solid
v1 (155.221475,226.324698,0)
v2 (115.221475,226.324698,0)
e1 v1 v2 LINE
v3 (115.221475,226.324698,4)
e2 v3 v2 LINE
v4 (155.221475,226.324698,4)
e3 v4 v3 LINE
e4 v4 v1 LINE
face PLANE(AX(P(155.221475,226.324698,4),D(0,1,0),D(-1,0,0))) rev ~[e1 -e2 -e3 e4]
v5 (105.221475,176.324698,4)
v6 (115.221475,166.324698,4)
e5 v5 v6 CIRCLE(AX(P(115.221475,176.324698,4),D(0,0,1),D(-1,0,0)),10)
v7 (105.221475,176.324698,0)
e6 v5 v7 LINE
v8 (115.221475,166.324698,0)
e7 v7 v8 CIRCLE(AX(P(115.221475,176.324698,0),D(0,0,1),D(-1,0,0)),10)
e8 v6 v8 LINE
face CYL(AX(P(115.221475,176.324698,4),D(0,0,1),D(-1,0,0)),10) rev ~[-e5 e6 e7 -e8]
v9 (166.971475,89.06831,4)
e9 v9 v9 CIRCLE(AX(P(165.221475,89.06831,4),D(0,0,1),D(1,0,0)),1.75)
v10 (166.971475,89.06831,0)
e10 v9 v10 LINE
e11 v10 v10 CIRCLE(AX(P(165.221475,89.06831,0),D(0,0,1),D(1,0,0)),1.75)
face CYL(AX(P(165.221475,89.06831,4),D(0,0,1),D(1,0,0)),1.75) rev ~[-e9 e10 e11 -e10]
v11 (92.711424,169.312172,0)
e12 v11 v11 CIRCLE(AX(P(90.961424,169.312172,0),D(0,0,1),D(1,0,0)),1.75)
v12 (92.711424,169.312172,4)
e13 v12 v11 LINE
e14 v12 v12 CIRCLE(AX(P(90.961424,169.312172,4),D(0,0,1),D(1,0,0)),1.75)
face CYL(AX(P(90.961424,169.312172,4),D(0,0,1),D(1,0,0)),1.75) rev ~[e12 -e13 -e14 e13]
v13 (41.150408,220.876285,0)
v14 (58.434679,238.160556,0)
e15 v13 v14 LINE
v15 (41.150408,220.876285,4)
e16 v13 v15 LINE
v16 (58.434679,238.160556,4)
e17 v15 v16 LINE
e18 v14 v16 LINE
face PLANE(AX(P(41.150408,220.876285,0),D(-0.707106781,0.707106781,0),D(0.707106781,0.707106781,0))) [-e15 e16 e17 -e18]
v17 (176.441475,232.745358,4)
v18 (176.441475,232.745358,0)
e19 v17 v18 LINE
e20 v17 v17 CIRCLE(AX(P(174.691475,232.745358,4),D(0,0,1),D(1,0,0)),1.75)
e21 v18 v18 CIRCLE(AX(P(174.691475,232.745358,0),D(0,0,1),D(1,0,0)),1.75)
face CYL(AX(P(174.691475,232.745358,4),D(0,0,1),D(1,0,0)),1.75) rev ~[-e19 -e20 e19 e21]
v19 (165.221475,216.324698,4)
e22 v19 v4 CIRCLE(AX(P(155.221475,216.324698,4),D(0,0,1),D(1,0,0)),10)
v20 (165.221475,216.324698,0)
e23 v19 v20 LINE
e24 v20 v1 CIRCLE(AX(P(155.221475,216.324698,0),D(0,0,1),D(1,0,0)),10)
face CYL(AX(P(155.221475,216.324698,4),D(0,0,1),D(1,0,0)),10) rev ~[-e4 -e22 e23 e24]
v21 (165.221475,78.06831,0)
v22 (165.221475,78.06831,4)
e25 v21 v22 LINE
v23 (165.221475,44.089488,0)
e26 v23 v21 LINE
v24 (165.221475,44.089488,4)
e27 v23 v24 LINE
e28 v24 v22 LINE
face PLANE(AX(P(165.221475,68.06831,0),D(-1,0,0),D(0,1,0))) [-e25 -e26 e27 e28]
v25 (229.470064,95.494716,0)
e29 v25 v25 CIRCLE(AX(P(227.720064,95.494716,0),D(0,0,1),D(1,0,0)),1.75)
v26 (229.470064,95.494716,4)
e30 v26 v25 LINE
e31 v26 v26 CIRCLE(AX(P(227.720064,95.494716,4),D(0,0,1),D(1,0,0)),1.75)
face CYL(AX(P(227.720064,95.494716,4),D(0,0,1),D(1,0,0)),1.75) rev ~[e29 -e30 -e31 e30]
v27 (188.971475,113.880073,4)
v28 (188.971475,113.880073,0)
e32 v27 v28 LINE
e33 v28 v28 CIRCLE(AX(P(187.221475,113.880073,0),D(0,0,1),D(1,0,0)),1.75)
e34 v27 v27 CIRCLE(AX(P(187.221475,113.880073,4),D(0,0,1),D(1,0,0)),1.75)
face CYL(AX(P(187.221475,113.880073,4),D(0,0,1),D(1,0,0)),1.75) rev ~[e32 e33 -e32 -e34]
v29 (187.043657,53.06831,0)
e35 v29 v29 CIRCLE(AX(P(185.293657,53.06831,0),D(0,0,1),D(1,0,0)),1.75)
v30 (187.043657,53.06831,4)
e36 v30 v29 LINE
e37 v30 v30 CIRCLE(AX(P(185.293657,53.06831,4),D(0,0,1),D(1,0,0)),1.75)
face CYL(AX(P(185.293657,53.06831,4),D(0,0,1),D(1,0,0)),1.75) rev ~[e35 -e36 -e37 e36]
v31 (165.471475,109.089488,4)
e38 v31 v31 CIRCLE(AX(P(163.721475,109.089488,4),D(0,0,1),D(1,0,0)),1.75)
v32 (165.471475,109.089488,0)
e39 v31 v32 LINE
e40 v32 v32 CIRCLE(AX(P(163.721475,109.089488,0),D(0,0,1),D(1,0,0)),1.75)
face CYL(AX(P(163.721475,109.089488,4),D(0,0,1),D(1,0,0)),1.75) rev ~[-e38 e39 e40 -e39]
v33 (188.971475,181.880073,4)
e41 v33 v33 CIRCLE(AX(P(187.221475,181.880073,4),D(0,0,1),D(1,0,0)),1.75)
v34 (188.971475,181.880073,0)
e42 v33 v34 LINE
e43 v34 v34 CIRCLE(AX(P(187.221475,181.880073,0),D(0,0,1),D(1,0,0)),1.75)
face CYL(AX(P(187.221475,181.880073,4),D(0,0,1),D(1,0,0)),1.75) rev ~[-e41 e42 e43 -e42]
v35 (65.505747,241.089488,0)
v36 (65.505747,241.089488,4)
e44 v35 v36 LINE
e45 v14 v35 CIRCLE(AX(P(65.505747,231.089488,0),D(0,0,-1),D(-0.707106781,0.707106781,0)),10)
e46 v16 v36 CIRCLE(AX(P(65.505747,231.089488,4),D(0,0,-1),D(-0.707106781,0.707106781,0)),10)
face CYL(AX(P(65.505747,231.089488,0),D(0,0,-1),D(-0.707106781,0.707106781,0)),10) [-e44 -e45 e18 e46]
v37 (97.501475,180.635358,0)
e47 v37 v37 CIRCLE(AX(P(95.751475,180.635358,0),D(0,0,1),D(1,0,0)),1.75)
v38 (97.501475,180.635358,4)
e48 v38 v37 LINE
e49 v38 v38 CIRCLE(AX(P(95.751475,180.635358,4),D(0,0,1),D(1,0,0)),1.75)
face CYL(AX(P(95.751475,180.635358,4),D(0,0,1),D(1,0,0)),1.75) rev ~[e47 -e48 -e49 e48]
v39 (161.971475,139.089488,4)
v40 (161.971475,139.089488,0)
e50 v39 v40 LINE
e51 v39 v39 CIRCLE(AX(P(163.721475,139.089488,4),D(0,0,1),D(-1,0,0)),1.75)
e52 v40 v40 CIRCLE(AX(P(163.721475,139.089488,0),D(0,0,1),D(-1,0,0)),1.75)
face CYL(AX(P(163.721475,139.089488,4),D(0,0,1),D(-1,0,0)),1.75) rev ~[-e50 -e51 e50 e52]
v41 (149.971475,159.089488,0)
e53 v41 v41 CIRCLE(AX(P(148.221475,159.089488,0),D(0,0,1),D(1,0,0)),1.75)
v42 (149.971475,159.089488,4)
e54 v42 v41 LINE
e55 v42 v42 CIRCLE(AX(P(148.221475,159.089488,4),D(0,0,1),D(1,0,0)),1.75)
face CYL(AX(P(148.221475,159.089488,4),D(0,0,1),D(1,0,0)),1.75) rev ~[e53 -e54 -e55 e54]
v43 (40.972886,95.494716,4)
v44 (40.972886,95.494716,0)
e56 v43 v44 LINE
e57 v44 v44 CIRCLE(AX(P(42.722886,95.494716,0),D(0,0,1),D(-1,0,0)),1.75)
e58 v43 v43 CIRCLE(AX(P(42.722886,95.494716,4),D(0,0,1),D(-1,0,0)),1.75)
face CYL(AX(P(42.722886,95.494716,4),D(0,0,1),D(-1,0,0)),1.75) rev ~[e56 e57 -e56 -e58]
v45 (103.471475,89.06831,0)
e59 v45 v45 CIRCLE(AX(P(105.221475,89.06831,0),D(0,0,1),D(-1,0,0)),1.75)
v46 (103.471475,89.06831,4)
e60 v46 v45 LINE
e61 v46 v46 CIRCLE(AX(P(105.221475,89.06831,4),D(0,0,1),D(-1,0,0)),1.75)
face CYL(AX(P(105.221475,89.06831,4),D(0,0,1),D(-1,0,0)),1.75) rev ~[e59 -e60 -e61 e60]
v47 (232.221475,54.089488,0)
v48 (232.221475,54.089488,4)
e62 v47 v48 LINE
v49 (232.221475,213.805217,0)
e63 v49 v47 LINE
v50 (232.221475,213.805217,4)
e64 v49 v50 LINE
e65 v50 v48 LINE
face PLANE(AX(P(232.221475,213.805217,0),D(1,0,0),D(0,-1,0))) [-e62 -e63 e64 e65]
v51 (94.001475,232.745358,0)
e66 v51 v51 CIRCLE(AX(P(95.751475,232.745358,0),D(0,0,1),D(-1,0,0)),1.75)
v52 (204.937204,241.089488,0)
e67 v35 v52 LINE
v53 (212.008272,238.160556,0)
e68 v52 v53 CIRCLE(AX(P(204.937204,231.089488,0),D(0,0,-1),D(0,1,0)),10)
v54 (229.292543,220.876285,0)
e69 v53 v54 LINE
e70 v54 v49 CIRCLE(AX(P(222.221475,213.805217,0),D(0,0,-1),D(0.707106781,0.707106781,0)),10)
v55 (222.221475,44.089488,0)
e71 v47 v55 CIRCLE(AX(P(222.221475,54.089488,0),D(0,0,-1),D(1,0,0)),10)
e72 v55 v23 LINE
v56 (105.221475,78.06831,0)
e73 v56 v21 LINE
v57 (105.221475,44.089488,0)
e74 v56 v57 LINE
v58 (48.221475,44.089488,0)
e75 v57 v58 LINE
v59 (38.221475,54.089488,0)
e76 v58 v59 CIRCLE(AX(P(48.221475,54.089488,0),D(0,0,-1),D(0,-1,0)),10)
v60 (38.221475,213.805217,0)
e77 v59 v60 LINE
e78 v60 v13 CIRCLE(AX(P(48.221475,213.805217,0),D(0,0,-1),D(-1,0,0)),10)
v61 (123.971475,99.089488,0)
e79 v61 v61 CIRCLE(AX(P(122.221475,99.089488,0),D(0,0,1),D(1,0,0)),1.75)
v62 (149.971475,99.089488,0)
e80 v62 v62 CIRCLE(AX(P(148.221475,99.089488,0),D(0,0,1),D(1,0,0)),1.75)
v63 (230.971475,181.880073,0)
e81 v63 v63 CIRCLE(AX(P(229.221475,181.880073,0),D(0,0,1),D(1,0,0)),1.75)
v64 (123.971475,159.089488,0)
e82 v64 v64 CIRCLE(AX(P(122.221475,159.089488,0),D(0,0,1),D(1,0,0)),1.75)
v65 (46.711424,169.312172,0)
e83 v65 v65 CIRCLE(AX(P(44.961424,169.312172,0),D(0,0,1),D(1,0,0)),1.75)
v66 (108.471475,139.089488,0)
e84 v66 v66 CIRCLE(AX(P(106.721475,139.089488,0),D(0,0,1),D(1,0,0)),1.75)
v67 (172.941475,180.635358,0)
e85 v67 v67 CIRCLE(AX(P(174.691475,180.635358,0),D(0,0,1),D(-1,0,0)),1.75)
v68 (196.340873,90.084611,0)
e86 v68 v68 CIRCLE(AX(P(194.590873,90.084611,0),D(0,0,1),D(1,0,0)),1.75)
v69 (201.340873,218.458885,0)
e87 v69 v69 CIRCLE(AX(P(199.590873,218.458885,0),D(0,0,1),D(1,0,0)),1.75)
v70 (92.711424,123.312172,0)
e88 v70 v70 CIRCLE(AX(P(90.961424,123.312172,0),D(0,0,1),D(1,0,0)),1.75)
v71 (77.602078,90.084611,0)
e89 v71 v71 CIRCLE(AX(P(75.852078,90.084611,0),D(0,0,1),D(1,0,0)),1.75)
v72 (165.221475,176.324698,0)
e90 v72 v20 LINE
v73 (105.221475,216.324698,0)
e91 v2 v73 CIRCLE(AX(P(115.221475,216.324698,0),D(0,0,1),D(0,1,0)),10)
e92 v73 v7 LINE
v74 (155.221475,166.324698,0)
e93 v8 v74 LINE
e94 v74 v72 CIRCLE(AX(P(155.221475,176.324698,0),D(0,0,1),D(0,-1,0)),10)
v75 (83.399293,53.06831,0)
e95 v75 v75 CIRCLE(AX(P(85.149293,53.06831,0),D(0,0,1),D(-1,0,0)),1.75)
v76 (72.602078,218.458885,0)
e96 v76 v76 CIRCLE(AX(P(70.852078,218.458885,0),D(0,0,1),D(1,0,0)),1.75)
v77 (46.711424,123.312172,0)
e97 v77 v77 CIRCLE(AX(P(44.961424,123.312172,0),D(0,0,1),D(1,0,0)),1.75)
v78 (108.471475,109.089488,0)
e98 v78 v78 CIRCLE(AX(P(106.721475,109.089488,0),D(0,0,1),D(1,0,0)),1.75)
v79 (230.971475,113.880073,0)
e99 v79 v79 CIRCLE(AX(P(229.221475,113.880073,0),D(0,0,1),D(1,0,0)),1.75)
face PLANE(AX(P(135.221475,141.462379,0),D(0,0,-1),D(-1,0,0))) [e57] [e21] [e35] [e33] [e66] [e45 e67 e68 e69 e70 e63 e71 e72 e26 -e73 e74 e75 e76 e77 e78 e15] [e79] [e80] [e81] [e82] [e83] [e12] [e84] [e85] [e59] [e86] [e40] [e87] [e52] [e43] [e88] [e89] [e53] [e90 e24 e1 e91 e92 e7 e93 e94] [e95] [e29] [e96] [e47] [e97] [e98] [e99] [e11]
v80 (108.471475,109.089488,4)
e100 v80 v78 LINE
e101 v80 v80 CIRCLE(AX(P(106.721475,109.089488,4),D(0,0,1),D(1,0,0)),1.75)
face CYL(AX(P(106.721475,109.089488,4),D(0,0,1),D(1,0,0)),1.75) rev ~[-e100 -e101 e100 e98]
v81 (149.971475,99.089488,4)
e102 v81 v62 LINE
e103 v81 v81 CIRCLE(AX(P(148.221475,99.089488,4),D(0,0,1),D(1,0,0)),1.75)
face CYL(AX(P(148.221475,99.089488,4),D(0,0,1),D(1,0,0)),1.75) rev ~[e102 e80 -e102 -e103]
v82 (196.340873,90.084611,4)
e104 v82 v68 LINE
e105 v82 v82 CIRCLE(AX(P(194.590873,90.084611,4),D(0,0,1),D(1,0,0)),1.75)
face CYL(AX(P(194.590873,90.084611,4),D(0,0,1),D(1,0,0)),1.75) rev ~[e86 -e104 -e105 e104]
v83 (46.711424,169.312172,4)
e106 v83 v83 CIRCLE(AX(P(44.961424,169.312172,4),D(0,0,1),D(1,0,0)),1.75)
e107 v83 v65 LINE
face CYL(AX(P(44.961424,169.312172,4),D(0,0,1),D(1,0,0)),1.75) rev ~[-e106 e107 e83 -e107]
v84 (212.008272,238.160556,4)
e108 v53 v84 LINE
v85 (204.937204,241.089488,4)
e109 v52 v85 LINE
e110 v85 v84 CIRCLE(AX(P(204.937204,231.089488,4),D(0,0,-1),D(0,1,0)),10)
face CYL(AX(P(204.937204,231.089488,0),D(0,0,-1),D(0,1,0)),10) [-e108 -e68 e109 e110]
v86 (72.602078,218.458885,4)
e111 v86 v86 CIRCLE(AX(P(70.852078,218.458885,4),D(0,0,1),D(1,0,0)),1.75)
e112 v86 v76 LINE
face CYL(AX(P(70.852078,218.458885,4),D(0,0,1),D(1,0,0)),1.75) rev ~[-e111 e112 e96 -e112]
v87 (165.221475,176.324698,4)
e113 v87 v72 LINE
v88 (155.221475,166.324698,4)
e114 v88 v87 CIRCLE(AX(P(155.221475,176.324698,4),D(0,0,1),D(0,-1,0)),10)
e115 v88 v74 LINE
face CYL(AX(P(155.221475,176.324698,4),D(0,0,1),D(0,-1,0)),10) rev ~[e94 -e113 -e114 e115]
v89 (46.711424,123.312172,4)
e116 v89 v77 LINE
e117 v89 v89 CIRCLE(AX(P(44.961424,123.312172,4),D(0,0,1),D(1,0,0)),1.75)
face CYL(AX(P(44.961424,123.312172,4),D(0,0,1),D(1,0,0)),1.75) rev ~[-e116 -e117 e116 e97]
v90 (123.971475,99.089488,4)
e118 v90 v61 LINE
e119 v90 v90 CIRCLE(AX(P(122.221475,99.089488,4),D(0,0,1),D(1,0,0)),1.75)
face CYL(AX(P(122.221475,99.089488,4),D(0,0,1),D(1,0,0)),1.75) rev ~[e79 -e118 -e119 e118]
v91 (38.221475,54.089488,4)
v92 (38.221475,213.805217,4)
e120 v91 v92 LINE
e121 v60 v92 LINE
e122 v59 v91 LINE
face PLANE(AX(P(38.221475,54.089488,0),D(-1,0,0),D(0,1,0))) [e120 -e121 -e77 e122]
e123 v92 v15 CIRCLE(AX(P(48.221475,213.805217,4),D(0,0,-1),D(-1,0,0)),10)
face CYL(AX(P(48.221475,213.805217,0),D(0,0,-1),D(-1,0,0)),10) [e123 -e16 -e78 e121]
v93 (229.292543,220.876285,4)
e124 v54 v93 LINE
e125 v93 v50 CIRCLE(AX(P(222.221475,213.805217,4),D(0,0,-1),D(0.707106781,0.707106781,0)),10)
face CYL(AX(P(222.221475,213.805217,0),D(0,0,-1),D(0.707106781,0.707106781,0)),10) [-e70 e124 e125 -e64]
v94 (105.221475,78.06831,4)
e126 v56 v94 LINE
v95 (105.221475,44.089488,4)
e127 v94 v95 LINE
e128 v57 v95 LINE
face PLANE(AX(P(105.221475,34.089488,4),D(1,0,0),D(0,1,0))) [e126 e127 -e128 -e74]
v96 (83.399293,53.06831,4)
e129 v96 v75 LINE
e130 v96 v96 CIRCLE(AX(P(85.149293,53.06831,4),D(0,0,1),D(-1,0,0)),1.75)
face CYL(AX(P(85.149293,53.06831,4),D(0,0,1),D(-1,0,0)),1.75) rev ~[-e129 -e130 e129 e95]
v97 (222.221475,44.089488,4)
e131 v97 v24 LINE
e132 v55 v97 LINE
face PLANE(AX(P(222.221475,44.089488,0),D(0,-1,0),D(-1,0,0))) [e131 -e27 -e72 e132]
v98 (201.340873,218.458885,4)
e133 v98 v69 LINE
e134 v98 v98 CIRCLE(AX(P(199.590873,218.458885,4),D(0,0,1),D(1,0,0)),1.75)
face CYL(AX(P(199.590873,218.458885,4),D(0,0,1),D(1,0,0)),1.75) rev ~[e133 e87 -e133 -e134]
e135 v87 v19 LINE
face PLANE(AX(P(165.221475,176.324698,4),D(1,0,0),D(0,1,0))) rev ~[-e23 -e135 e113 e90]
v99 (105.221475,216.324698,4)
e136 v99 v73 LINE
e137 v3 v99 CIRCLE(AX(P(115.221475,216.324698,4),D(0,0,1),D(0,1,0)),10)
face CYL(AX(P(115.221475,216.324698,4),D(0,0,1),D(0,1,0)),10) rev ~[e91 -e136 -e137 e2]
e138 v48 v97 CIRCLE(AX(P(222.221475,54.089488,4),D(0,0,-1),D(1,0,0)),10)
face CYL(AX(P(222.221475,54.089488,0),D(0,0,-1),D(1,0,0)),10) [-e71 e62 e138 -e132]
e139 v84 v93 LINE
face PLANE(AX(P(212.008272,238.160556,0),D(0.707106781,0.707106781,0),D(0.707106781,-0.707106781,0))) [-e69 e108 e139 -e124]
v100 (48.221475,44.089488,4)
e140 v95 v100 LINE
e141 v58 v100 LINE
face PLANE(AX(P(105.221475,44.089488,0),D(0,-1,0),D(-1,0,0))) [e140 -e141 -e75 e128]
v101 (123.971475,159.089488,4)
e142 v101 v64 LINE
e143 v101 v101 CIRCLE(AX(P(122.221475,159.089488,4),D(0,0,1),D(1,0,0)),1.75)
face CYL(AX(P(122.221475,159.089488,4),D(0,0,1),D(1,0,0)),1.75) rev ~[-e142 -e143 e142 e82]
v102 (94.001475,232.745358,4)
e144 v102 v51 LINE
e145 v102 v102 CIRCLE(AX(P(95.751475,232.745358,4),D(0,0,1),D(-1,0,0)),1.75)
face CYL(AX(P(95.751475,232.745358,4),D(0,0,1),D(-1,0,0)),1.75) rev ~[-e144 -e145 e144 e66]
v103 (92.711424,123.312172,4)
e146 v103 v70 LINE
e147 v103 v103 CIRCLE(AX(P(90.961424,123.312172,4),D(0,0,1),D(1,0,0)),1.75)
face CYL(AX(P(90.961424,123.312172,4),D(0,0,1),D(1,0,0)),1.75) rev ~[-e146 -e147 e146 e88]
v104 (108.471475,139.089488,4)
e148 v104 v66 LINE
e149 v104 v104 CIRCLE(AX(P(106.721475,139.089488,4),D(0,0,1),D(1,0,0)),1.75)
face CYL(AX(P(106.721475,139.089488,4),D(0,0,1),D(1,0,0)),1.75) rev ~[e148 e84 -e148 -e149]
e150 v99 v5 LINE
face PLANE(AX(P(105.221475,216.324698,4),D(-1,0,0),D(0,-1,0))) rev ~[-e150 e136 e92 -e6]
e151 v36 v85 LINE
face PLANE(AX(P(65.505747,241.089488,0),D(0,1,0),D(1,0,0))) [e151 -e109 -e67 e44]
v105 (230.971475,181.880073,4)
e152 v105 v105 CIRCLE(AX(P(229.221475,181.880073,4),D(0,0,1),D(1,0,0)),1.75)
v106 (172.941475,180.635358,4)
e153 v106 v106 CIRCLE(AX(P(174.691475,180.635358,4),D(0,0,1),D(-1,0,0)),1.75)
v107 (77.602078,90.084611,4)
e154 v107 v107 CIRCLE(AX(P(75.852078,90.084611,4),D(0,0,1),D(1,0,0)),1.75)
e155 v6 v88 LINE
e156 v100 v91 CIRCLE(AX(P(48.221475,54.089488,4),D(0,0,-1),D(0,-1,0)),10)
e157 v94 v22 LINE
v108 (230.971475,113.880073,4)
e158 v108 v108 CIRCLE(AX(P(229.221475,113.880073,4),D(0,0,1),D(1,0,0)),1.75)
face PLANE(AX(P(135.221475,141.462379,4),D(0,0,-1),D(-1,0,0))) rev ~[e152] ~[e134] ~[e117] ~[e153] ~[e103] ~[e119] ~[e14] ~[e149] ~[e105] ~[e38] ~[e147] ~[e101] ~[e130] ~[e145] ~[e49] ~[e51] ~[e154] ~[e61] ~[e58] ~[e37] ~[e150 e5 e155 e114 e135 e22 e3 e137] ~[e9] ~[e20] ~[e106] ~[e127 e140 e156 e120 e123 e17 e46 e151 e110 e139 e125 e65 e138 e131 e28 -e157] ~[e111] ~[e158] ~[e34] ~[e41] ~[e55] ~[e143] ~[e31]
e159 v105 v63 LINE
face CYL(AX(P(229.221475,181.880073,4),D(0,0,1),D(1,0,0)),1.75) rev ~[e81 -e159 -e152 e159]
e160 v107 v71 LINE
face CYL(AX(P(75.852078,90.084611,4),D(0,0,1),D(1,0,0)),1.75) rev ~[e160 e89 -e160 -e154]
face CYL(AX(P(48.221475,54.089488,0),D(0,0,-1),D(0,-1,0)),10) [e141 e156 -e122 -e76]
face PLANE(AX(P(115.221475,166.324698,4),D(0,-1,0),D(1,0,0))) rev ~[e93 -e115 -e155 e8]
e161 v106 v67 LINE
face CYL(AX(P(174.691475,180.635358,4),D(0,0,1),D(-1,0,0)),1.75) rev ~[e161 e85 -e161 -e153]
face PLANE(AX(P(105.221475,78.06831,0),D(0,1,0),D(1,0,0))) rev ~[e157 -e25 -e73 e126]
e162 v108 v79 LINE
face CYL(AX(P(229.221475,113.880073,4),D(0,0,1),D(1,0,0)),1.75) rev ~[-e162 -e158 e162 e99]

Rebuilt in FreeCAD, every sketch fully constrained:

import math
import FreeCAD as App
import Part
import Sketcher

V = App.Vector

doc = App.newDocument("Part")
body = doc.addObject("PartDesign::Body", "Body")

sketch1 = body.newObject("Sketcher::SketchObject", "Sketch")
sketch1.AttachmentSupport = (doc.getObject("XY_Plane"), [""])
sketch1.MapMode = "FlatFace"
sketch1.addGeometry(Part.LineSegment(V(197, 259, 0), V(74, 259, 0)), False)
sketch1.addGeometry(Part.ArcOfCircle(Part.Circle(V(74, 239, 0), V(0, 0, 1), 20), math.radians(90), math.radians(135)), False)
sketch1.addGeometry(Part.LineSegment(V(59, 253, 0), V(31, 225, 0)), False)
sketch1.addGeometry(Part.ArcOfCircle(Part.Circle(V(45, 211, 0), V(0, 0, 1), 20), math.radians(135), math.radians(180)), False)
sketch1.addGeometry(Part.LineSegment(V(25, 211, 0), V(25, 54, 0)), False)
sketch1.addGeometry(Part.ArcOfCircle(Part.Circle(V(45, 54, 0), V(0, 0, 1), 20), math.radians(-180), math.radians(-90)), False)
sketch1.addGeometry(Part.LineSegment(V(45, 34, 0), V(225, 34, 0)), False)
sketch1.addGeometry(Part.ArcOfCircle(Part.Circle(V(225, 54, 0), V(0, 0, 1), 20), math.radians(-90), math.radians(0)), False)
sketch1.addGeometry(Part.LineSegment(V(245, 54, 0), V(245, 211, 0)), False)
sketch1.addGeometry(Part.ArcOfCircle(Part.Circle(V(225, 211, 0), V(0, 0, 1), 20), math.radians(0), math.radians(45)), False)
sketch1.addGeometry(Part.LineSegment(V(239, 225, 0), V(211, 253, 0)), False)
sketch1.addGeometry(Part.ArcOfCircle(Part.Circle(V(197, 239, 0), V(0, 0, 1), 20), math.radians(45), math.radians(90)), False)
sketch1.addConstraint(Sketcher.Constraint("Tangent", 0, 2, 1, 1))
sketch1.addConstraint(Sketcher.Constraint("Tangent", 1, 2, 2, 1))
sketch1.addConstraint(Sketcher.Constraint("Tangent", 2, 2, 3, 1))
sketch1.addConstraint(Sketcher.Constraint("Tangent", 3, 2, 4, 1))
sketch1.addConstraint(Sketcher.Constraint("Tangent", 4, 2, 5, 1))
sketch1.addConstraint(Sketcher.Constraint("Tangent", 5, 2, 6, 1))
sketch1.addConstraint(Sketcher.Constraint("Tangent", 6, 2, 7, 1))
sketch1.addConstraint(Sketcher.Constraint("Tangent", 7, 2, 8, 1))
sketch1.addConstraint(Sketcher.Constraint("Tangent", 8, 2, 9, 1))
sketch1.addConstraint(Sketcher.Constraint("Tangent", 9, 2, 10, 1))
sketch1.addConstraint(Sketcher.Constraint("Tangent", 10, 2, 11, 1))
sketch1.addConstraint(Sketcher.Constraint("Tangent", 11, 2, 0, 1))
sketch1.addConstraint(Sketcher.Constraint("Horizontal", 0))
sketch1.addConstraint(Sketcher.Constraint("Vertical", 4))
sketch1.addConstraint(Sketcher.Constraint("Horizontal", 6))
sketch1.addConstraint(Sketcher.Constraint("Vertical", 8))
sketch1.addConstraint(Sketcher.Constraint("Equal", 1, 3))
sketch1.addConstraint(Sketcher.Constraint("Equal", 3, 5))
sketch1.addConstraint(Sketcher.Constraint("Equal", 5, 7))
sketch1.addConstraint(Sketcher.Constraint("Equal", 7, 9))
sketch1.addConstraint(Sketcher.Constraint("Equal", 9, 11))
sketch1.addConstraint(Sketcher.Constraint("Perpendicular", 2, 10))
sketch1.addConstraint(Sketcher.Constraint("Horizontal", 3, 3, 9, 3))
sketch1.addConstraint(Sketcher.Constraint("Horizontal", 2, 2, 9, 2))
sketch1.addConstraint(Sketcher.Constraint("Radius", 1, 20.0))
sketch1.addConstraint(Sketcher.Constraint("DistanceX", 6, 1, 6, 2, 180.0))
sketch1.addConstraint(Sketcher.Constraint("Distance", 2, 40.0))
sketch1.addConstraint(Sketcher.Constraint("DistanceY", 5, 3, 1, 3, 185.0))
sketch1.addConstraint(Sketcher.Constraint("DistanceY", -1, 1, 1, 3, 239.089488))
sketch1.addConstraint(Sketcher.Constraint("DistanceX", -1, 1, 1, 2, 59.363611))
pad1 = body.newObject("PartDesign::Pad", "Pad")
pad1.Profile = sketch1
pad1.Length = 4

sketch2 = body.newObject("Sketcher::SketchObject", "Sketch001")
sketch2.AttachmentSupport = (doc.getObject("XY_Plane"), [""])
sketch2.MapMode = "FlatFace"
sketch2.AttachmentOffset = App.Placement(V(0, 0, 4), App.Rotation())
sketch2.addGeometry(Part.Circle(V(187.2, 181.9, 0), V(0, 0, 1), 1.8), False)
sketch2.addGeometry(Part.Circle(V(229.2, 181.9, 0), V(0, 0, 1), 1.8), False)
sketch2.addGeometry(Part.Circle(V(229.2, 113.9, 0), V(0, 0, 1), 1.8), False)
sketch2.addGeometry(Part.Circle(V(187.2, 113.9, 0), V(0, 0, 1), 1.8), False)
sketch2.addConstraint(Sketcher.Constraint("Equal", 0, 1))
sketch2.addConstraint(Sketcher.Constraint("Equal", 1, 2))
sketch2.addConstraint(Sketcher.Constraint("Equal", 2, 3))
sketch2.addConstraint(Sketcher.Constraint("Horizontal", 0, 3, 1, 3))
sketch2.addConstraint(Sketcher.Constraint("Horizontal", 2, 3, 3, 3))
sketch2.addConstraint(Sketcher.Constraint("Vertical", 1, 3, 2, 3))
sketch2.addConstraint(Sketcher.Constraint("Vertical", 0, 3, 3, 3))
sketch2.addConstraint(Sketcher.Constraint("Diameter", 0, 3.5))
sketch2.addConstraint(Sketcher.Constraint("DistanceX", 0, 3, 1, 3, 42.0))
sketch2.addConstraint(Sketcher.Constraint("DistanceY", 2, 3, 1, 3, 68.0))
sketch2.addConstraint(Sketcher.Constraint("DistanceX", -1, 1, 0, 3, 187.221475))
sketch2.addConstraint(Sketcher.Constraint("DistanceY", -1, 1, 0, 3, 181.880073))
pocket1 = body.newObject("PartDesign::Pocket", "Pocket")
pocket1.Profile = sketch2
pocket1.Length = 4

sketch3 = body.newObject("Sketcher::SketchObject", "Sketch002")
sketch3.AttachmentSupport = (doc.getObject("XY_Plane"), [""])
sketch3.MapMode = "FlatFace"
sketch3.AttachmentOffset = App.Placement(V(0, 0, 4), App.Rotation())
sketch3.addGeometry(Part.Circle(V(174.7, 232.7, 0), V(0, 0, 1), 1.8), False)
sketch3.addGeometry(Part.Circle(V(174.7, 180.6, 0), V(0, 0, 1), 1.8), False)
sketch3.addGeometry(Part.Circle(V(95.8, 180.6, 0), V(0, 0, 1), 1.8), False)
sketch3.addGeometry(Part.Circle(V(95.8, 232.7, 0), V(0, 0, 1), 1.8), False)
sketch3.addGeometry(Part.Circle(V(165.2, 89.1, 0), V(0, 0, 1), 1.8), False)
sketch3.addGeometry(Part.Circle(V(105.2, 89.1, 0), V(0, 0, 1), 1.8), False)
sketch3.addConstraint(Sketcher.Constraint("Equal", 0, 1))
sketch3.addConstraint(Sketcher.Constraint("Equal", 1, 2))
sketch3.addConstraint(Sketcher.Constraint("Equal", 2, 3))
sketch3.addConstraint(Sketcher.Constraint("Equal", 3, 4))
sketch3.addConstraint(Sketcher.Constraint("Equal", 4, 5))
sketch3.addConstraint(Sketcher.Constraint("Horizontal", 1, 3, 2, 3))
sketch3.addConstraint(Sketcher.Constraint("Horizontal", 0, 3, 3, 3))
sketch3.addConstraint(Sketcher.Constraint("Horizontal", 4, 3, 5, 3))
sketch3.addConstraint(Sketcher.Constraint("Vertical", 0, 3, 1, 3))
sketch3.addConstraint(Sketcher.Constraint("Vertical", 2, 3, 3, 3))
sketch3.addConstraint(Sketcher.Constraint("Diameter", 0, 3.5))
sketch3.addConstraint(Sketcher.Constraint("DistanceX", 5, 3, 4, 3, 60.0))
sketch3.addConstraint(Sketcher.Constraint("DistanceY", 1, 3, 0, 3, 52.11))
sketch3.addConstraint(Sketcher.Constraint("DistanceX", 2, 3, 1, 3, 78.94))
sketch3.addConstraint(Sketcher.Constraint("DistanceX", 4, 3, 1, 3, 9.47))
sketch3.addConstraint(Sketcher.Constraint("DistanceY", -1, 1, 4, 3, 89.06831))
sketch3.addConstraint(Sketcher.Constraint("DistanceY", 4, 3, 1, 3, 91.567048))
sketch3.addConstraint(Sketcher.Constraint("DistanceX", -1, 1, 0, 3, 174.691475))
pocket2 = body.newObject("PartDesign::Pocket", "Pocket001")
pocket2.Profile = sketch3
pocket2.Length = 4

sketch4 = body.newObject("Sketcher::SketchObject", "Sketch003")
sketch4.AttachmentSupport = (doc.getObject("XY_Plane"), [""])
sketch4.MapMode = "FlatFace"
sketch4.AttachmentOffset = App.Placement(V(0, 0, 4), App.Rotation())
sketch4.addGeometry(Part.Circle(V(122.2, 159.1, 0), V(0, 0, 1), 1.8), False)
sketch4.addGeometry(Part.Circle(V(148.2, 159.1, 0), V(0, 0, 1), 1.8), False)
sketch4.addGeometry(Part.Circle(V(122.2, 99.1, 0), V(0, 0, 1), 1.8), False)
sketch4.addGeometry(Part.Circle(V(148.2, 99.1, 0), V(0, 0, 1), 1.8), False)
sketch4.addConstraint(Sketcher.Constraint("Equal", 0, 1))
sketch4.addConstraint(Sketcher.Constraint("Equal", 1, 2))
sketch4.addConstraint(Sketcher.Constraint("Equal", 2, 3))
sketch4.addConstraint(Sketcher.Constraint("Horizontal", 0, 3, 1, 3))
sketch4.addConstraint(Sketcher.Constraint("Horizontal", 2, 3, 3, 3))
sketch4.addConstraint(Sketcher.Constraint("Vertical", 0, 3, 2, 3))
sketch4.addConstraint(Sketcher.Constraint("Vertical", 1, 3, 3, 3))
sketch4.addConstraint(Sketcher.Constraint("Diameter", 0, 3.5))
sketch4.addConstraint(Sketcher.Constraint("DistanceX", 0, 3, 1, 3, 26.0))
sketch4.addConstraint(Sketcher.Constraint("DistanceY", 2, 3, 0, 3, 60.0))
sketch4.addConstraint(Sketcher.Constraint("DistanceY", -1, 1, 0, 3, 159.089488))
sketch4.addConstraint(Sketcher.Constraint("DistanceX", -1, 1, 0, 3, 122.221475))
pocket3 = body.newObject("PartDesign::Pocket", "Pocket002")
pocket3.Profile = sketch4
pocket3.Length = 4

sketch5 = body.newObject("Sketcher::SketchObject", "Sketch004")
sketch5.AttachmentSupport = (doc.getObject("XY_Plane"), [""])
sketch5.MapMode = "FlatFace"
sketch5.AttachmentOffset = App.Placement(V(0, 0, 4), App.Rotation())
sketch5.addGeometry(Part.Circle(V(227.7, 95.5, 0), V(0, 0, 1), 1.8), False)
sketch5.addGeometry(Part.Circle(V(185.3, 53.1, 0), V(0, 0, 1), 1.8), False)
sketch5.addGeometry(Part.Circle(V(42.7, 95.5, 0), V(0, 0, 1), 1.8), False)
sketch5.addGeometry(Part.Circle(V(85.1, 53.1, 0), V(0, 0, 1), 1.8), False)
sketch5.addConstraint(Sketcher.Constraint("Equal", 0, 1))
sketch5.addConstraint(Sketcher.Constraint("Equal", 1, 2))
sketch5.addConstraint(Sketcher.Constraint("Equal", 2, 3))
sketch5.addConstraint(Sketcher.Constraint("Horizontal", 0, 3, 2, 3))
sketch5.addConstraint(Sketcher.Constraint("Horizontal", 1, 3, 3, 3))
sketch5.addConstraint(Sketcher.Constraint("Diameter", 0, 3.5))
sketch5.addConstraint(Sketcher.Constraint("DistanceY", -1, 1, 1, 3, 53.06831))
sketch5.addConstraint(Sketcher.Constraint("DistanceX", 2, 3, 1, 3, 142.570771))
sketch5.addConstraint(Sketcher.Constraint("DistanceX", 2, 3, 0, 3, 184.997178))
sketch5.addConstraint(Sketcher.Constraint("DistanceX", 3, 3, 0, 3, 142.570771))
sketch5.addConstraint(Sketcher.Constraint("DistanceX", -1, 1, 0, 3, 227.720064))
sketch5.addConstraint(Sketcher.Constraint("DistanceY", -1, 1, 0, 3, 95.494716))
pocket4 = body.newObject("PartDesign::Pocket", "Pocket003")
pocket4.Profile = sketch5
pocket4.Length = 4

sketch6 = body.newObject("Sketcher::SketchObject", "Sketch005")
sketch6.AttachmentSupport = (doc.getObject("XY_Plane"), [""])
sketch6.MapMode = "FlatFace"
sketch6.AttachmentOffset = App.Placement(V(0, 0, 4), App.Rotation())
sketch6.addGeometry(Part.LineSegment(V(115, 166, 0), V(155, 166, 0)), False)
sketch6.addGeometry(Part.ArcOfCircle(Part.Circle(V(155, 176, 0), V(0, 0, 1), 10), math.radians(-90), math.radians(0)), False)
sketch6.addGeometry(Part.LineSegment(V(165, 176, 0), V(165, 216, 0)), False)
sketch6.addGeometry(Part.ArcOfCircle(Part.Circle(V(155, 216, 0), V(0, 0, 1), 10), math.radians(0), math.radians(90)), False)
sketch6.addGeometry(Part.LineSegment(V(155, 226, 0), V(115, 226, 0)), False)
sketch6.addGeometry(Part.ArcOfCircle(Part.Circle(V(115, 216, 0), V(0, 0, 1), 10), math.radians(90), math.radians(180)), False)
sketch6.addGeometry(Part.LineSegment(V(105, 216, 0), V(105, 176, 0)), False)
sketch6.addGeometry(Part.ArcOfCircle(Part.Circle(V(115, 176, 0), V(0, 0, 1), 10), math.radians(180), math.radians(270)), False)
sketch6.addConstraint(Sketcher.Constraint("Tangent", 0, 2, 1, 1))
sketch6.addConstraint(Sketcher.Constraint("Tangent", 1, 2, 2, 1))
sketch6.addConstraint(Sketcher.Constraint("Tangent", 2, 2, 3, 1))
sketch6.addConstraint(Sketcher.Constraint("Tangent", 3, 2, 4, 1))
sketch6.addConstraint(Sketcher.Constraint("Tangent", 4, 2, 5, 1))
sketch6.addConstraint(Sketcher.Constraint("Tangent", 5, 2, 6, 1))
sketch6.addConstraint(Sketcher.Constraint("Tangent", 6, 2, 7, 1))
sketch6.addConstraint(Sketcher.Constraint("Tangent", 7, 2, 0, 1))
sketch6.addConstraint(Sketcher.Constraint("Horizontal", 0))
sketch6.addConstraint(Sketcher.Constraint("Vertical", 2))
sketch6.addConstraint(Sketcher.Constraint("Horizontal", 4))
sketch6.addConstraint(Sketcher.Constraint("Vertical", 6))
sketch6.addConstraint(Sketcher.Constraint("Equal", 1, 3))
sketch6.addConstraint(Sketcher.Constraint("Equal", 3, 5))
sketch6.addConstraint(Sketcher.Constraint("Equal", 5, 7))
sketch6.addConstraint(Sketcher.Constraint("Equal", 4, 2))
sketch6.addConstraint(Sketcher.Constraint("Radius", 1, 10.0))
sketch6.addConstraint(Sketcher.Constraint("DistanceX", 0, 1, 0, 2, 40.0))
sketch6.addConstraint(Sketcher.Constraint("DistanceY", -1, 1, 1, 3, 176.324698))
sketch6.addConstraint(Sketcher.Constraint("DistanceX", -1, 1, 1, 3, 155.221475))
pocket5 = body.newObject("PartDesign::Pocket", "Pocket004")
pocket5.Profile = sketch6
pocket5.Length = 4

sketch7 = body.newObject("Sketcher::SketchObject", "Sketch006")
sketch7.AttachmentSupport = (doc.getObject("XY_Plane"), [""])
sketch7.MapMode = "FlatFace"
sketch7.AttachmentOffset = App.Placement(V(0, 0, 4), App.Rotation())
sketch7.addGeometry(Part.Circle(V(106.7, 109.1, 0), V(0, 0, 1), 1.8), False)
sketch7.addGeometry(Part.Circle(V(163.7, 109.1, 0), V(0, 0, 1), 1.7), False)
sketch7.addGeometry(Part.Circle(V(106.7, 139.1, 0), V(0, 0, 1), 1.8), False)
sketch7.addGeometry(Part.Circle(V(163.7, 139.1, 0), V(0, 0, 1), 1.8), False)
sketch7.addConstraint(Sketcher.Constraint("Equal", 0, 1))
sketch7.addConstraint(Sketcher.Constraint("Equal", 1, 2))
sketch7.addConstraint(Sketcher.Constraint("Equal", 2, 3))
sketch7.addConstraint(Sketcher.Constraint("Horizontal", 0, 3, 1, 3))
sketch7.addConstraint(Sketcher.Constraint("Horizontal", 2, 3, 3, 3))
sketch7.addConstraint(Sketcher.Constraint("Vertical", 0, 3, 2, 3))
sketch7.addConstraint(Sketcher.Constraint("Vertical", 1, 3, 3, 3))
sketch7.addConstraint(Sketcher.Constraint("Diameter", 0, 3.5))
sketch7.addConstraint(Sketcher.Constraint("DistanceX", 0, 3, 1, 3, 57.0))
sketch7.addConstraint(Sketcher.Constraint("DistanceY", 0, 3, 2, 3, 30.0))
sketch7.addConstraint(Sketcher.Constraint("DistanceY", -1, 1, 0, 3, 109.089488))
sketch7.addConstraint(Sketcher.Constraint("DistanceX", -1, 1, 0, 3, 106.721475))
pocket6 = body.newObject("PartDesign::Pocket", "Pocket005")
pocket6.Profile = sketch7
pocket6.Length = 4

sketch8 = body.newObject("Sketcher::SketchObject", "Sketch007")
sketch8.AttachmentSupport = (doc.getObject("XY_Plane"), [""])
sketch8.MapMode = "FlatFace"
sketch8.AttachmentOffset = App.Placement(V(0, 0, 4), App.Rotation())
sketch8.addGeometry(Part.Circle(V(70.9, 218.5, 0), V(0, 0, 1), 1.8), False)
sketch8.addConstraint(Sketcher.Constraint("Diameter", 0, 3.5))
sketch8.addConstraint(Sketcher.Constraint("DistanceX", -1, 1, 0, 3, 70.852078))
sketch8.addConstraint(Sketcher.Constraint("DistanceY", -1, 1, 0, 3, 218.458885))
pocket7 = body.newObject("PartDesign::Pocket", "Pocket006")
pocket7.Profile = sketch8
pocket7.Type = "UpToFirst"

sketch9 = body.newObject("Sketcher::SketchObject", "Sketch008")
sketch9.AttachmentSupport = (doc.getObject("XY_Plane"), [""])
sketch9.MapMode = "FlatFace"
sketch9.AttachmentOffset = App.Placement(V(0, 0, 4), App.Rotation())
sketch9.addGeometry(Part.Circle(V(75.9, 90.1, 0), V(0, 0, 1), 1.8), False)
sketch9.addConstraint(Sketcher.Constraint("Diameter", 0, 3.5))
sketch9.addConstraint(Sketcher.Constraint("DistanceY", -1, 1, 0, 3, 90.084611))
sketch9.addConstraint(Sketcher.Constraint("DistanceX", -1, 1, 0, 3, 75.852078))
pocket8 = body.newObject("PartDesign::Pocket", "Pocket007")
pocket8.Profile = sketch9
pocket8.Type = "UpToFirst"

sketch10 = body.newObject("Sketcher::SketchObject", "Sketch009")
sketch10.AttachmentSupport = (doc.getObject("XY_Plane"), [""])
sketch10.MapMode = "FlatFace"
sketch10.AttachmentOffset = App.Placement(V(0, 0, 4), App.Rotation())
sketch10.addGeometry(Part.Circle(V(194.6, 90.1, 0), V(0, 0, 1), 1.8), False)
sketch10.addConstraint(Sketcher.Constraint("Diameter", 0, 3.5))
sketch10.addConstraint(Sketcher.Constraint("DistanceY", -1, 1, 0, 3, 90.084611))
sketch10.addConstraint(Sketcher.Constraint("DistanceX", -1, 1, 0, 3, 194.590873))
pocket9 = body.newObject("PartDesign::Pocket", "Pocket008")
pocket9.Profile = sketch10
pocket9.Type = "UpToFirst"

sketch11 = body.newObject("Sketcher::SketchObject", "Sketch010")
sketch11.AttachmentSupport = (doc.getObject("XY_Plane"), [""])
sketch11.MapMode = "FlatFace"
sketch11.AttachmentOffset = App.Placement(V(0, 0, 4), App.Rotation())
sketch11.addGeometry(Part.Circle(V(199.6, 218.5, 0), V(0, 0, 1), 1.8), False)
sketch11.addConstraint(Sketcher.Constraint("Diameter", 0, 3.5))
sketch11.addConstraint(Sketcher.Constraint("DistanceX", -1, 1, 0, 3, 199.590873))
sketch11.addConstraint(Sketcher.Constraint("DistanceY", -1, 1, 0, 3, 218.458885))
pocket10 = body.newObject("PartDesign::Pocket", "Pocket009")
pocket10.Profile = sketch11
pocket10.Type = "UpToFirst"

sketch12 = body.newObject("Sketcher::SketchObject", "Sketch011")
sketch12.AttachmentSupport = (doc.getObject("XY_Plane"), [""])
sketch12.MapMode = "FlatFace"
sketch12.AttachmentOffset = App.Placement(V(0, 0, 4), App.Rotation())
sketch12.addGeometry(Part.Circle(V(91, 169.3, 0), V(0, 0, 1), 1.8), False)
sketch12.addGeometry(Part.Circle(V(91, 123.3, 0), V(0, 0, 1), 1.8), False)
sketch12.addGeometry(Part.Circle(V(45, 123.3, 0), V(0, 0, 1), 1.8), False)
sketch12.addGeometry(Part.Circle(V(45, 169.3, 0), V(0, 0, 1), 1.8), False)
sketch12.addConstraint(Sketcher.Constraint("Equal", 0, 1))
sketch12.addConstraint(Sketcher.Constraint("Equal", 1, 2))
sketch12.addConstraint(Sketcher.Constraint("Equal", 2, 3))
sketch12.addConstraint(Sketcher.Constraint("Horizontal", 1, 3, 2, 3))
sketch12.addConstraint(Sketcher.Constraint("Horizontal", 0, 3, 3, 3))
sketch12.addConstraint(Sketcher.Constraint("Vertical", 0, 3, 1, 3))
sketch12.addConstraint(Sketcher.Constraint("Vertical", 2, 3, 3, 3))
sketch12.addConstraint(Sketcher.Constraint("Diameter", 0, 3.5))
sketch12.addConstraint(Sketcher.Constraint("DistanceY", 1, 3, 0, 3, 46.0))
sketch12.addConstraint(Sketcher.Constraint("DistanceX", 2, 3, 1, 3, 46.0))
sketch12.addConstraint(Sketcher.Constraint("DistanceY", -1, 1, 0, 3, 169.312172))
sketch12.addConstraint(Sketcher.Constraint("DistanceX", -1, 1, 0, 3, 90.961424))
pocket11 = body.newObject("PartDesign::Pocket", "Pocket010")
pocket11.Profile = sketch12
pocket11.Type = "ThroughAll"

sketch13 = body.newObject("Sketcher::SketchObject", "Sketch012")
sketch13.AttachmentSupport = (doc.getObject("XY_Plane"), [""])
sketch13.MapMode = "FlatFace"
sketch13.AttachmentOffset = App.Placement(V(0, 0, 4), App.Rotation())
sketch13.addGeometry(Part.LineSegment(V(105, 68, 0), V(105, 34, 0)), False)
sketch13.addGeometry(Part.LineSegment(V(105, 34, 0), V(165, 34, 0)), False)
sketch13.addGeometry(Part.LineSegment(V(165, 34, 0), V(165, 68, 0)), False)
sketch13.addGeometry(Part.LineSegment(V(165, 68, 0), V(105, 68, 0)), False)
sketch13.addConstraint(Sketcher.Constraint("Coincident", 0, 2, 1, 1))
sketch13.addConstraint(Sketcher.Constraint("Coincident", 1, 2, 2, 1))
sketch13.addConstraint(Sketcher.Constraint("Coincident", 2, 2, 3, 1))
sketch13.addConstraint(Sketcher.Constraint("Coincident", 3, 2, 0, 1))
sketch13.addConstraint(Sketcher.Constraint("Vertical", 0))
sketch13.addConstraint(Sketcher.Constraint("Horizontal", 1))
sketch13.addConstraint(Sketcher.Constraint("Vertical", 2))
sketch13.addConstraint(Sketcher.Constraint("Horizontal", 3))
sketch13.addConstraint(Sketcher.Constraint("DistanceX", 1, 1, 1, 2, 60.0))
sketch13.addConstraint(Sketcher.Constraint("DistanceY", 0, 2, 0, 1, 33.978822))
sketch13.addConstraint(Sketcher.Constraint("DistanceY", -1, 1, 0, 2, 34.089488))
sketch13.addConstraint(Sketcher.Constraint("DistanceX", -1, 1, 0, 2, 105.221475))
pocket12 = body.newObject("PartDesign::Pocket", "Pocket011")
pocket12.Profile = sketch13
pocket12.Length = 10

sketch14 = body.newObject("Sketcher::SketchObject", "Sketch013")
sketch14.AttachmentSupport = (doc.getObject("XY_Plane"), [""])
sketch14.MapMode = "FlatFace"
sketch14.addGeometry(Part.ArcOfCircle(Part.Circle(V(48, 214, 0), V(0, 0, 1), 10), math.radians(135), math.radians(180)), False)
sketch14.addGeometry(Part.LineSegment(V(41, 221, 0), V(58, 238, 0)), False)
sketch14.addGeometry(Part.ArcOfCircle(Part.Circle(V(66, 231, 0), V(0, 0, 1), 10), math.radians(90), math.radians(135)), False)
sketch14.addGeometry(Part.LineSegment(V(66, 241, 0), V(205, 241, 0)), False)
sketch14.addGeometry(Part.ArcOfCircle(Part.Circle(V(205, 231, 0), V(0, 0, 1), 10), math.radians(45), math.radians(90)), False)
sketch14.addGeometry(Part.LineSegment(V(212, 238, 0), V(229, 221, 0)), False)
sketch14.addGeometry(Part.ArcOfCircle(Part.Circle(V(222, 214, 0), V(0, 0, 1), 10), math.radians(0), math.radians(45)), False)
sketch14.addGeometry(Part.LineSegment(V(232, 214, 0), V(232, 54, 0)), False)
sketch14.addGeometry(Part.ArcOfCircle(Part.Circle(V(222, 54, 0), V(0, 0, 1), 10), math.radians(-90), math.radians(0)), False)
sketch14.addGeometry(Part.LineSegment(V(222, 44, 0), V(165, 44, 0)), False)
sketch14.addGeometry(Part.LineSegment(V(165, 44, 0), V(165, 34, 0)), False)
sketch14.addGeometry(Part.LineSegment(V(165, 34, 0), V(225, 34, 0)), False)
sketch14.addGeometry(Part.ArcOfCircle(Part.Circle(V(225, 54, 0), V(0, 0, 1), 20), math.radians(-90), math.radians(0)), False)
sketch14.addGeometry(Part.LineSegment(V(245, 54, 0), V(245, 211, 0)), False)
sketch14.addGeometry(Part.ArcOfCircle(Part.Circle(V(225, 211, 0), V(0, 0, 1), 20), math.radians(0), math.radians(45)), False)
sketch14.addGeometry(Part.LineSegment(V(239, 225, 0), V(211, 253, 0)), False)
sketch14.addGeometry(Part.ArcOfCircle(Part.Circle(V(197, 239, 0), V(0, 0, 1), 20), math.radians(45), math.radians(90)), False)
sketch14.addGeometry(Part.LineSegment(V(197, 259, 0), V(74, 259, 0)), False)
sketch14.addGeometry(Part.ArcOfCircle(Part.Circle(V(74, 239, 0), V(0, 0, 1), 20), math.radians(90), math.radians(135)), False)
sketch14.addGeometry(Part.LineSegment(V(59, 253, 0), V(31, 225, 0)), False)
sketch14.addGeometry(Part.ArcOfCircle(Part.Circle(V(45, 211, 0), V(0, 0, 1), 20), math.radians(135), math.radians(180)), False)
sketch14.addGeometry(Part.LineSegment(V(25, 211, 0), V(25, 54, 0)), False)
sketch14.addGeometry(Part.ArcOfCircle(Part.Circle(V(45, 54, 0), V(0, 0, 1), 20), math.radians(-180), math.radians(-90)), False)
sketch14.addGeometry(Part.LineSegment(V(45, 34, 0), V(105, 34, 0)), False)
sketch14.addGeometry(Part.LineSegment(V(105, 34, 0), V(105, 44, 0)), False)
sketch14.addGeometry(Part.LineSegment(V(105, 44, 0), V(48, 44, 0)), False)
sketch14.addGeometry(Part.ArcOfCircle(Part.Circle(V(48, 54, 0), V(0, 0, 1), 10), math.radians(180), math.radians(270)), False)
sketch14.addGeometry(Part.LineSegment(V(38, 54, 0), V(38, 214, 0)), False)
sketch14.addGeometry(Part.LineSegment(V(105, 78, 0), V(105, 68, 0)), False)
sketch14.addGeometry(Part.LineSegment(V(105, 68, 0), V(165, 68, 0)), False)
sketch14.addGeometry(Part.LineSegment(V(165, 68, 0), V(165, 78, 0)), False)
sketch14.addGeometry(Part.LineSegment(V(165, 78, 0), V(105, 78, 0)), False)
sketch14.addConstraint(Sketcher.Constraint("Tangent", 0, 1, 1, 1))
sketch14.addConstraint(Sketcher.Constraint("Tangent", 1, 2, 2, 2))
sketch14.addConstraint(Sketcher.Constraint("Tangent", 2, 1, 3, 1))
sketch14.addConstraint(Sketcher.Constraint("Tangent", 3, 2, 4, 2))
sketch14.addConstraint(Sketcher.Constraint("Tangent", 4, 1, 5, 1))
sketch14.addConstraint(Sketcher.Constraint("Tangent", 5, 2, 6, 2))
sketch14.addConstraint(Sketcher.Constraint("Tangent", 6, 1, 7, 1))
sketch14.addConstraint(Sketcher.Constraint("Tangent", 7, 2, 8, 2))
sketch14.addConstraint(Sketcher.Constraint("Tangent", 8, 1, 9, 1))
sketch14.addConstraint(Sketcher.Constraint("Coincident", 9, 2, 10, 1))
sketch14.addConstraint(Sketcher.Constraint("Coincident", 10, 2, 11, 1))
sketch14.addConstraint(Sketcher.Constraint("Tangent", 11, 2, 12, 1))
sketch14.addConstraint(Sketcher.Constraint("Tangent", 12, 2, 13, 1))
sketch14.addConstraint(Sketcher.Constraint("Tangent", 13, 2, 14, 1))
sketch14.addConstraint(Sketcher.Constraint("Tangent", 14, 2, 15, 1))
sketch14.addConstraint(Sketcher.Constraint("Tangent", 15, 2, 16, 1))
sketch14.addConstraint(Sketcher.Constraint("Tangent", 16, 2, 17, 1))
sketch14.addConstraint(Sketcher.Constraint("Tangent", 17, 2, 18, 1))
sketch14.addConstraint(Sketcher.Constraint("Tangent", 18, 2, 19, 1))
sketch14.addConstraint(Sketcher.Constraint("Tangent", 19, 2, 20, 1))
sketch14.addConstraint(Sketcher.Constraint("Tangent", 20, 2, 21, 1))
sketch14.addConstraint(Sketcher.Constraint("Tangent", 21, 2, 22, 1))
sketch14.addConstraint(Sketcher.Constraint("Tangent", 22, 2, 23, 1))
sketch14.addConstraint(Sketcher.Constraint("Coincident", 23, 2, 24, 1))
sketch14.addConstraint(Sketcher.Constraint("Coincident", 24, 2, 25, 1))
sketch14.addConstraint(Sketcher.Constraint("Tangent", 25, 2, 26, 2))
sketch14.addConstraint(Sketcher.Constraint("Tangent", 26, 1, 27, 1))
sketch14.addConstraint(Sketcher.Constraint("Tangent", 27, 2, 0, 2))
sketch14.addConstraint(Sketcher.Constraint("Coincident", 28, 2, 29, 1))
sketch14.addConstraint(Sketcher.Constraint("Coincident", 29, 2, 30, 1))
sketch14.addConstraint(Sketcher.Constraint("Coincident", 30, 2, 31, 1))
sketch14.addConstraint(Sketcher.Constraint("Coincident", 31, 2, 28, 1))
sketch14.addConstraint(Sketcher.Constraint("Horizontal", 3))
sketch14.addConstraint(Sketcher.Constraint("Vertical", 7))
sketch14.addConstraint(Sketcher.Constraint("Horizontal", 9))
sketch14.addConstraint(Sketcher.Constraint("Vertical", 10))
sketch14.addConstraint(Sketcher.Constraint("Horizontal", 11))
sketch14.addConstraint(Sketcher.Constraint("Vertical", 13))
sketch14.addConstraint(Sketcher.Constraint("Horizontal", 17))
sketch14.addConstraint(Sketcher.Constraint("Vertical", 21))
sketch14.addConstraint(Sketcher.Constraint("Horizontal", 23))
sketch14.addConstraint(Sketcher.Constraint("Vertical", 24))
sketch14.addConstraint(Sketcher.Constraint("Horizontal", 25))
sketch14.addConstraint(Sketcher.Constraint("Vertical", 27))
sketch14.addConstraint(Sketcher.Constraint("Vertical", 28))
sketch14.addConstraint(Sketcher.Constraint("Horizontal", 29))
sketch14.addConstraint(Sketcher.Constraint("Vertical", 30))
sketch14.addConstraint(Sketcher.Constraint("Horizontal", 31))
sketch14.addConstraint(Sketcher.Constraint("Equal", 0, 2))
sketch14.addConstraint(Sketcher.Constraint("Equal", 2, 4))
sketch14.addConstraint(Sketcher.Constraint("Equal", 4, 6))
sketch14.addConstraint(Sketcher.Constraint("Equal", 6, 8))
sketch14.addConstraint(Sketcher.Constraint("Equal", 12, 14))
sketch14.addConstraint(Sketcher.Constraint("Equal", 14, 16))
sketch14.addConstraint(Sketcher.Constraint("Equal", 16, 18))
sketch14.addConstraint(Sketcher.Constraint("Equal", 18, 20))
sketch14.addConstraint(Sketcher.Constraint("Equal", 20, 22))
sketch14.addConstraint(Sketcher.Constraint("Equal", 8, 26))
sketch14.addConstraint(Sketcher.Constraint("Perpendicular", 1, 5))
sketch14.addConstraint(Sketcher.Constraint("Parallel", 5, 15))
sketch14.addConstraint(Sketcher.Constraint("Perpendicular", 15, 19))
sketch14.addConstraint(Sketcher.Constraint("Horizontal", 0, 3, 6, 3))
sketch14.addConstraint(Sketcher.Constraint("Horizontal", 8, 3, 12, 3))
sketch14.addConstraint(Sketcher.Constraint("Horizontal", 14, 3, 20, 3))
sketch14.addConstraint(Sketcher.Constraint("Horizontal", 12, 3, 22, 3))
sketch14.addConstraint(Sketcher.Constraint("Horizontal", 22, 3, 26, 3))
sketch14.addConstraint(Sketcher.Constraint("Horizontal", 1, 2, 4, 1))
sketch14.addConstraint(Sketcher.Constraint("Vertical", 24, 2, 28, 2))
sketch14.addConstraint(Sketcher.Constraint("Vertical", 10, 2, 29, 2))
sketch14.addConstraint(Sketcher.Constraint("Equal", 11, 23))
sketch14.addConstraint(Sketcher.Constraint("Equal", 9, 25))
sketch14.addConstraint(Sketcher.Constraint("Equal", 23, 29))
sketch14.addConstraint(Sketcher.Constraint("Equal", 24, 28))
sketch14.addConstraint(Sketcher.Constraint("Radius", 0, 10.0))
sketch14.addConstraint(Sketcher.Constraint("Radius", 12, 20.0))
sketch14.addConstraint(Sketcher.Constraint("DistanceX", 9, 2, 9, 1, 57.0))
sketch14.addConstraint(Sketcher.Constraint("DistanceX", 11, 1, 11, 2, 60.0))
sketch14.addConstraint(Sketcher.Constraint("Distance", 15, 40.0))
sketch14.addConstraint(Sketcher.Constraint("DistanceY", 8, 3, 4, 3, 177.0))
sketch14.addConstraint(Sketcher.Constraint("DistanceY", 14, 3, 6, 3, 3.0))
sketch14.addConstraint(Sketcher.Constraint("DistanceX", 16, 3, 4, 3, 8.0))
sketch14.addConstraint(Sketcher.Constraint("DistanceY", -1, 1, 2, 3, 231.089488))
sketch14.addConstraint(Sketcher.Constraint("DistanceX", -1, 1, 1, 2, 58.434679))
sketch14.addConstraint(Sketcher.Constraint("DistanceY", -1, 1, 28, 2, 68.06831))
pocket13 = body.newObject("PartDesign::Pocket", "Pocket012")
pocket13.Profile = sketch14
pocket13.Length = 10
pocket13.Reversed = True

doc.recompute()
